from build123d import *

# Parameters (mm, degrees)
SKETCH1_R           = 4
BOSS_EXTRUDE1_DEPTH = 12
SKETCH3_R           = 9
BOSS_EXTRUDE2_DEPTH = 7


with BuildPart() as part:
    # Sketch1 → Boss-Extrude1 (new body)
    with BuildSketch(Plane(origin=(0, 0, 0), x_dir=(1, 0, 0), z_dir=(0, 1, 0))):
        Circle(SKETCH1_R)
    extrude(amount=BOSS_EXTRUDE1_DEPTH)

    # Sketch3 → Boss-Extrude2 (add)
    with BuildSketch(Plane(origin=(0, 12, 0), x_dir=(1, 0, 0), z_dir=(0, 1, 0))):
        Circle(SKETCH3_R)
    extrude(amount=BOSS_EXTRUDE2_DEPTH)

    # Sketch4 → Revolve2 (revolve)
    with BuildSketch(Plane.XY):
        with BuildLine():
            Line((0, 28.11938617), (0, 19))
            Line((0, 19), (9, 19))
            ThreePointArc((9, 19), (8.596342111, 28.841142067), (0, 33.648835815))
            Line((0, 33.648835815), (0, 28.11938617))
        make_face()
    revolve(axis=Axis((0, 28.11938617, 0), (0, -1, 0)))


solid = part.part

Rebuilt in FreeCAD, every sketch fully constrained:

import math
import FreeCAD as App
import Part
import Sketcher

V = App.Vector

doc = App.newDocument("Part")
body = doc.addObject("PartDesign::Body", "Body")

# Sketch on XZ plane
sketch1 = doc.addObject("Sketcher::SketchObject", "Sketch")
body.addObject(sketch1)
sketch1.AttachmentSupport = (doc.XZ_Plane, [""])
sketch1.MapMode = "FlatFace"
sketch1.addGeometry(Part.Circle(V(0, 0, 0), V(0, 0, 1), 4), False)
sketch1.addConstraint([
    Sketcher.Constraint("Coincident", 0, 3, -1, 1),
    Sketcher.Constraint("Diameter", 0, 8.0),
])
pad1 = doc.addObject("PartDesign::Pad", "Pad")
body.addObject(pad1)
pad1.Profile = sketch1
pad1.Length = 12
pad1.Reversed = True

# Sketch on XZ plane
sketch2 = doc.addObject("Sketcher::SketchObject", "Sketch001")
body.addObject(sketch2)
sketch2.AttachmentSupport = (doc.XZ_Plane, [""])
sketch2.MapMode = "FlatFace"
sketch2.AttachmentOffset = App.Placement(V(0, 0, -12), App.Rotation())
sketch2.addGeometry(Part.Circle(V(0, 0, 0), V(0, 0, 1), 9), False)
sketch2.addConstraint([
    Sketcher.Constraint("Coincident", 0, 3, -1, 1),
    Sketcher.Constraint("Diameter", 0, 18.0),
])
pad2 = doc.addObject("PartDesign::Pad", "Pad001")
body.addObject(pad2)
pad2.Profile = sketch2
pad2.Length = 7
pad2.Reversed = True

# Sketch on XY plane
sketch3 = doc.addObject("Sketcher::SketchObject", "Sketch002")
body.addObject(sketch3)
sketch3.AttachmentSupport = (doc.XY_Plane, [""])
sketch3.MapMode = "FlatFace"
sketch3.addGeometry([
    Part.LineSegment(V(0, 19, 0), V(9, 19, 0)),
    Part.ArcOfCircle(Part.Circle(V(0, 24, 0), V(0, 0, 1), 10), math.radians(-27), math.radians(90)),
    Part.LineSegment(V(0, 34, 0), V(0, 19, 0)),
], False)
sketch3.addConstraint([
    Sketcher.Constraint("Coincident", 0, 2, 1, 1),
    Sketcher.Constraint("Coincident", 1, 2, 2, 1),
    Sketcher.Constraint("Coincident", 2, 2, 0, 1),
    Sketcher.Constraint("Horizontal", 0),
    Sketcher.Constraint("Vertical", 2),
    Sketcher.Constraint("PointOnObject", 1, 3, -2),
    Sketcher.Constraint("PointOnObject", 1, 2, -2),
    Sketcher.Constraint("DistanceX", 0, 1, 0, 2, 9.0),
    Sketcher.Constraint("DistanceY", -1, 1, 0, 2, 19.0),
    Sketcher.Constraint("Radius", 1, 10.089143),
])
revolution = doc.addObject("PartDesign::Revolution", "Revolution")
body.addObject(revolution)
revolution.Profile = sketch3
revolution.ReferenceAxis = (sketch3, ["V_Axis"])
revolution.Angle = 360

doc.recompute()
